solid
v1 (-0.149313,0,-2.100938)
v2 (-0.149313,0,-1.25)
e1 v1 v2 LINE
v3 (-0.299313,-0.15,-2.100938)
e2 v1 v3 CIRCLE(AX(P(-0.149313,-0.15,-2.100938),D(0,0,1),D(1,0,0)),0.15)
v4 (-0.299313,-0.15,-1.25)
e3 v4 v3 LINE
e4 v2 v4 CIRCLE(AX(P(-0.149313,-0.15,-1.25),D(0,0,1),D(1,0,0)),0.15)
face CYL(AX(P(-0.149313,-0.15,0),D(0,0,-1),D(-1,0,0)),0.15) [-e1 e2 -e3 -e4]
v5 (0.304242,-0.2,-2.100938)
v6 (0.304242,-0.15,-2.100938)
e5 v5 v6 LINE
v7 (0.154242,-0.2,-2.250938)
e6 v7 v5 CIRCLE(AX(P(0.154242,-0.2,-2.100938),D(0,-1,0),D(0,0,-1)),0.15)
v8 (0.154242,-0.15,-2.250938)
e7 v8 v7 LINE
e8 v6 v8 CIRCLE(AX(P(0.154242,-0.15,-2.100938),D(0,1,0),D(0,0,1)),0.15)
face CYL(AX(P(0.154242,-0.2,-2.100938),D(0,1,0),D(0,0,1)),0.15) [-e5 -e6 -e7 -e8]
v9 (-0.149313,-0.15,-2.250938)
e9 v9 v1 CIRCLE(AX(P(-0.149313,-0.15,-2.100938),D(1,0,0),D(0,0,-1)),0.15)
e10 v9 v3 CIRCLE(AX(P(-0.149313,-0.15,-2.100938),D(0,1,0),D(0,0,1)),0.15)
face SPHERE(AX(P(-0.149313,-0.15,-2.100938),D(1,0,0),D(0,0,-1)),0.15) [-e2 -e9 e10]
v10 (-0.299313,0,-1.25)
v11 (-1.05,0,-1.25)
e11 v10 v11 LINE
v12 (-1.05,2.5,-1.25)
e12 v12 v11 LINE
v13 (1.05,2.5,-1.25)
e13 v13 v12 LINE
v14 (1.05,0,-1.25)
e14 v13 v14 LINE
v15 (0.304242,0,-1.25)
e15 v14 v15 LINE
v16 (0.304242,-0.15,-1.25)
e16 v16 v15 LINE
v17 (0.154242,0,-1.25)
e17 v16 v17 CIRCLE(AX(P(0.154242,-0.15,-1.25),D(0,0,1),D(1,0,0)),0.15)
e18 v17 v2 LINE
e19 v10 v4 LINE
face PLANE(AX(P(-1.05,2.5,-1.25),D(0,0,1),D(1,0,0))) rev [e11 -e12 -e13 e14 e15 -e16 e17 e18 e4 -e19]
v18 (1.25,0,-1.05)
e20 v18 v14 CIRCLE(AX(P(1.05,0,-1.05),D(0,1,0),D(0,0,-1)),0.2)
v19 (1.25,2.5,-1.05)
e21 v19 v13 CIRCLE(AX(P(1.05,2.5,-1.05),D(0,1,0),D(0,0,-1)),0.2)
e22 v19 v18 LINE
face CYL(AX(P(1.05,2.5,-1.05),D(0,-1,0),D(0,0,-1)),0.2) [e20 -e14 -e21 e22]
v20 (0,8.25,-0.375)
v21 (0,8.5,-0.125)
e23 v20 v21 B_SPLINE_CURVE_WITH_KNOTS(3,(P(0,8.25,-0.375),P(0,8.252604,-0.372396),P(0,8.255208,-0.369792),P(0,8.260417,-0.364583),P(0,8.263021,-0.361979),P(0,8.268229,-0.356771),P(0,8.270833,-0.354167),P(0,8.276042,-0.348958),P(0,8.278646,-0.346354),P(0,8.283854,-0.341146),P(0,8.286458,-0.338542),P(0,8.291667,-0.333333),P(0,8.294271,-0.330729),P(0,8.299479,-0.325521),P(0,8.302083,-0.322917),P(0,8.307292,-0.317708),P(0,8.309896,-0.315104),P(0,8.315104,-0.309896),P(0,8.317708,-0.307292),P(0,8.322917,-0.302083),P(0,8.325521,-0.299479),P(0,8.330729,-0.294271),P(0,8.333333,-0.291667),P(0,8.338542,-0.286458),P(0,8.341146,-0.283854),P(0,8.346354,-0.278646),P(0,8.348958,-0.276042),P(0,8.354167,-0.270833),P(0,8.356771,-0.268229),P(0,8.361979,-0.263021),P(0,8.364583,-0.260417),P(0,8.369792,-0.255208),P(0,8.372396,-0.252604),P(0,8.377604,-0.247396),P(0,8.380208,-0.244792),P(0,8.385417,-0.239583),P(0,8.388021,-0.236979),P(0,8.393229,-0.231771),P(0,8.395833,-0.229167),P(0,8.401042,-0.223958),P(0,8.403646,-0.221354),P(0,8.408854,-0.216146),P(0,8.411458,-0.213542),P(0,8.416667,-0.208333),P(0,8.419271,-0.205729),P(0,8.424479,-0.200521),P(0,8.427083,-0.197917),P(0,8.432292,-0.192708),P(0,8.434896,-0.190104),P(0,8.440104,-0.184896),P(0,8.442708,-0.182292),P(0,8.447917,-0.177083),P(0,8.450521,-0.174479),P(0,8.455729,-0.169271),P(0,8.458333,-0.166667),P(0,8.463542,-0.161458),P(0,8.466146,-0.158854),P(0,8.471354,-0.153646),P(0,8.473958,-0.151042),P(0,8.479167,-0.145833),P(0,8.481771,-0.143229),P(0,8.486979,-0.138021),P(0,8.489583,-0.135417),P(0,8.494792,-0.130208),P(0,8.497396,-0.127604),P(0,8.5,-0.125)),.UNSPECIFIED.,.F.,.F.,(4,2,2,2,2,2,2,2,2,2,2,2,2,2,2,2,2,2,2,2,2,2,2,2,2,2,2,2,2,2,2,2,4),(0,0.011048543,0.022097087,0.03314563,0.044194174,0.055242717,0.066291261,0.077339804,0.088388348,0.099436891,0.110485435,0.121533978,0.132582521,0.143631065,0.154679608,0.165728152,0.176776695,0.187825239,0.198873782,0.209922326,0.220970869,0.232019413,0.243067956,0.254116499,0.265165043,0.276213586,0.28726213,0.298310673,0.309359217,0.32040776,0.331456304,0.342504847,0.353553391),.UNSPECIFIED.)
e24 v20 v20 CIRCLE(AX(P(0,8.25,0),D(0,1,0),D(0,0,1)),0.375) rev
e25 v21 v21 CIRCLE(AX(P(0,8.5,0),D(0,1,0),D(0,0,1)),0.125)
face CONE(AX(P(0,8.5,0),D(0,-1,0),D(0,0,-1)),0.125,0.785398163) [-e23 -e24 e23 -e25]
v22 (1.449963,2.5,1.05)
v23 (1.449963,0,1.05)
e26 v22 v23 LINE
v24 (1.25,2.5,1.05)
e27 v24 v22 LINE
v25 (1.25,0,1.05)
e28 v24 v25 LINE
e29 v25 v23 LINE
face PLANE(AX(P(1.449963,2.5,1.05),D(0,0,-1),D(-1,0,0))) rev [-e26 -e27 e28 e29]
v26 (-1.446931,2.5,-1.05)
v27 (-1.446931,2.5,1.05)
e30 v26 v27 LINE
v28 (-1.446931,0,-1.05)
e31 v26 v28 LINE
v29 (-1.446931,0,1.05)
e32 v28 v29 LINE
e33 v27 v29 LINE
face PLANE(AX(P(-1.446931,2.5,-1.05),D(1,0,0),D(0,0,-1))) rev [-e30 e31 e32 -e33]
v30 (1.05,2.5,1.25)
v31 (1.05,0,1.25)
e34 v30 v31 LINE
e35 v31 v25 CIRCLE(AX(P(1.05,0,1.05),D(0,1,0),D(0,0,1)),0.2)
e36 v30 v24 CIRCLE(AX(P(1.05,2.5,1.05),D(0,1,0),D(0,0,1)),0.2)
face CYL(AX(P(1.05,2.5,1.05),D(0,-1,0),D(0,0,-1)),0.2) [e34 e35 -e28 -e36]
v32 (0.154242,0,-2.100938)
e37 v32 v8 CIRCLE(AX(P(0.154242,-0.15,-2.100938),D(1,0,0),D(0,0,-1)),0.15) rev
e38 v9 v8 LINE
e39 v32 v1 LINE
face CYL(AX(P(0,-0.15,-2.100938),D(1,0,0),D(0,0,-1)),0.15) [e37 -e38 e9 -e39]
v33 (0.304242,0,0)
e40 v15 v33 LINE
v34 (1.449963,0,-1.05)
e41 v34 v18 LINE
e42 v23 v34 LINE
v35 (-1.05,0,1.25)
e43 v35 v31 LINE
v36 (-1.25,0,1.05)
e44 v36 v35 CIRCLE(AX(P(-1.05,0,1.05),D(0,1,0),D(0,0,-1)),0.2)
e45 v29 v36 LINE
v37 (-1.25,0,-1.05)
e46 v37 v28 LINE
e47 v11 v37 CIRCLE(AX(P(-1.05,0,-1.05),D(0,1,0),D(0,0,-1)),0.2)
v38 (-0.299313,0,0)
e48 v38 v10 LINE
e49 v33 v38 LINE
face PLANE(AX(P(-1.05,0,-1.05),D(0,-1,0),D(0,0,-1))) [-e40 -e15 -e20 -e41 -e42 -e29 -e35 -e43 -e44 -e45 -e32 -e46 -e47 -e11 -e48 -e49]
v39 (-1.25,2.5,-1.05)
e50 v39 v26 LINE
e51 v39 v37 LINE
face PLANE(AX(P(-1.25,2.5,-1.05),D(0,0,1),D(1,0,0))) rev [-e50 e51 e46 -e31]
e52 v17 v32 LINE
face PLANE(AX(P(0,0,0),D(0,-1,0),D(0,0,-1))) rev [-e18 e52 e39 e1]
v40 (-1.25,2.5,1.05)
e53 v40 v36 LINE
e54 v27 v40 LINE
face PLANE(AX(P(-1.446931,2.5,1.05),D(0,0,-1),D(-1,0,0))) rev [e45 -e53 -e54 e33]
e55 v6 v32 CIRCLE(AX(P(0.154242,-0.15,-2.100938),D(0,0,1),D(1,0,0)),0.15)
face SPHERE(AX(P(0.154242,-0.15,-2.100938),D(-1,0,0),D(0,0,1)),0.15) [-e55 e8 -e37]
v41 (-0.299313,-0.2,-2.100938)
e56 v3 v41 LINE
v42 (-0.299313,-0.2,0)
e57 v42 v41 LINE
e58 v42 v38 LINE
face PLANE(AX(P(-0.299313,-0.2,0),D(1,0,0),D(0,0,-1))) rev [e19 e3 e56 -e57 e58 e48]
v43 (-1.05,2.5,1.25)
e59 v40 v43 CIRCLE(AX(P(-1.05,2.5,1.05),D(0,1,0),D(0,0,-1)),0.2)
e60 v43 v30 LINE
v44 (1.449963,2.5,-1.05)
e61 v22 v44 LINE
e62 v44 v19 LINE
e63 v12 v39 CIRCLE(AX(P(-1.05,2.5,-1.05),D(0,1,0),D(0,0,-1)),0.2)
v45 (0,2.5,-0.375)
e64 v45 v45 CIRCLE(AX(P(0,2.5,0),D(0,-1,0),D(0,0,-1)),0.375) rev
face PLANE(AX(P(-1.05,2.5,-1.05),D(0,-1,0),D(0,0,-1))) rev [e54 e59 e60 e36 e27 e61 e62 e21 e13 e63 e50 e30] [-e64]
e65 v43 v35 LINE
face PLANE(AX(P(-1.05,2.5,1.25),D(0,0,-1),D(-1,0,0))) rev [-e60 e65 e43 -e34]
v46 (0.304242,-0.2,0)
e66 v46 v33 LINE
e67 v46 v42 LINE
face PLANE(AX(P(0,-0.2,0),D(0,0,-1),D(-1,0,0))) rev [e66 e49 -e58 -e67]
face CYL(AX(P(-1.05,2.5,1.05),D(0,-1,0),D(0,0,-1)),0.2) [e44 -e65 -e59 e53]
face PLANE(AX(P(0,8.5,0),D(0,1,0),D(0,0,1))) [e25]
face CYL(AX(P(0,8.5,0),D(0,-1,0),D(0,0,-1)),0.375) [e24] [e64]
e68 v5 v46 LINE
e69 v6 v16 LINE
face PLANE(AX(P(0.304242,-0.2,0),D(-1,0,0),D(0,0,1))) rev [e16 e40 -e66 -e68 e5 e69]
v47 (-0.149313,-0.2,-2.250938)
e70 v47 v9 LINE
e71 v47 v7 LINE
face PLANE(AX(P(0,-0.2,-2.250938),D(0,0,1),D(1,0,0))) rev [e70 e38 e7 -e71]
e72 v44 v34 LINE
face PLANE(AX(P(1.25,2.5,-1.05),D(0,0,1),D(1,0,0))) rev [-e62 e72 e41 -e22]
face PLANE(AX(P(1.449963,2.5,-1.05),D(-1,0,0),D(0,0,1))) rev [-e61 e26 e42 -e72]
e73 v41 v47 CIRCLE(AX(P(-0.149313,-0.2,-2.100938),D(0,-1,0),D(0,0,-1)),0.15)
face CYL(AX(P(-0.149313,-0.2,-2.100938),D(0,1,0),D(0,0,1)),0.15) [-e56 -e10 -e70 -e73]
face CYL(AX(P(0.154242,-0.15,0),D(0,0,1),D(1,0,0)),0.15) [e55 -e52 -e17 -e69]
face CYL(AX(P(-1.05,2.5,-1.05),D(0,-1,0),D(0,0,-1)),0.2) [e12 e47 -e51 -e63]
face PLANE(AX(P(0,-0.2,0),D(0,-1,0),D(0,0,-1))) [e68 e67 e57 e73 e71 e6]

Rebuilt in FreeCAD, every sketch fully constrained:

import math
import FreeCAD as App
import Part
import Sketcher
from FreeCAD import Vector


def edges_at(feature, points):
    """Names of the edges that pass closest to the given points."""
    edges = feature.Shape.Edges
    near = lambda p: min(range(len(edges)), key=lambda i: edges[i].distToShape(Part.Vertex(*p))[0])
    return sorted({f"Edge{near(p) + 1}" for p in points})


def add_polygon(sketch, points):
    """Adds a closed chain of lines whose ends are joined by coincident constraints."""
    first, n = sketch.GeometryCount, len(points)
    for a, b in zip(points, points[1:] + points[:1]):
        sketch.addGeometry(Part.LineSegment(App.Vector(*a, 0), App.Vector(*b, 0)), False)
    for i in range(n):
        sketch.addConstraint(Sketcher.Constraint("Coincident", first + i, 2, first + (i + 1) % n, 1))

doc = App.newDocument("Part")
body = doc.addObject("PartDesign::Body", "Body")

# Sketch on XZ plane
sketch1 = doc.addObject("Sketcher::SketchObject", "Sketch")
body.addObject(sketch1)
sketch1.AttachmentSupport = (doc.XZ_Plane, [""])
sketch1.MapMode = "FlatFace"
sketch1.addGeometry(Part.LineSegment(Vector(-1.25, -1.05, 0), Vector(-1.45, -1.05, 0)), False)
sketch1.addGeometry(Part.LineSegment(Vector(-1.45, -1.05, 0), Vector(-1.45, 1.05, 0)), False)
sketch1.addGeometry(Part.LineSegment(Vector(-1.45, 1.05, 0), Vector(-1.25, 1.05, 0)), False)
sketch1.addGeometry(Part.ArcOfCircle(Part.Circle(Vector(-1.05, 1.05, 0), Vector(0, 0, 1), 0.2), math.radians(90), math.radians(180)), False)
sketch1.addGeometry(Part.LineSegment(Vector(-1.05, 1.25, 0), Vector(1.05, 1.25, 0)), False)
sketch1.addGeometry(Part.ArcOfCircle(Part.Circle(Vector(1.05, 1.05, 0), Vector(0, 0, 1), 0.2), math.radians(0), math.radians(90)), False)
sketch1.addGeometry(Part.LineSegment(Vector(1.25, 1.05, 0), Vector(1.45, 1.05, 0)), False)
sketch1.addGeometry(Part.LineSegment(Vector(1.45, 1.05, 0), Vector(1.45, -1.05, 0)), False)
sketch1.addGeometry(Part.LineSegment(Vector(1.45, -1.05, 0), Vector(1.25, -1.05, 0)), False)
sketch1.addGeometry(Part.ArcOfCircle(Part.Circle(Vector(1.05, -1.05, 0), Vector(0, 0, 1), 0.2), math.radians(-90), math.radians(0)), False)
sketch1.addGeometry(Part.LineSegment(Vector(1.05, -1.25, 0), Vector(-1.05, -1.25, 0)), False)
sketch1.addGeometry(Part.ArcOfCircle(Part.Circle(Vector(-1.05, -1.05, 0), Vector(0, 0, 1), 0.2), math.radians(-180), math.radians(-90)), False)
sketch1.addConstraint(Sketcher.Constraint("Coincident", 0, 2, 1, 1))
sketch1.addConstraint(Sketcher.Constraint("Coincident", 1, 2, 2, 1))
sketch1.addConstraint(Sketcher.Constraint("Coincident", 2, 2, 3, 2))
sketch1.addConstraint(Sketcher.Constraint("Tangent", 3, 1, 4, 1))
sketch1.addConstraint(Sketcher.Constraint("Tangent", 4, 2, 5, 2))
sketch1.addConstraint(Sketcher.Constraint("Coincident", 5, 1, 6, 1))
sketch1.addConstraint(Sketcher.Constraint("Coincident", 6, 2, 7, 1))
sketch1.addConstraint(Sketcher.Constraint("Coincident", 7, 2, 8, 1))
sketch1.addConstraint(Sketcher.Constraint("Coincident", 8, 2, 9, 2))
sketch1.addConstraint(Sketcher.Constraint("Tangent", 9, 1, 10, 1))
sketch1.addConstraint(Sketcher.Constraint("Tangent", 10, 2, 11, 2))
sketch1.addConstraint(Sketcher.Constraint("Coincident", 11, 1, 0, 1))
sketch1.addConstraint(Sketcher.Constraint("Horizontal", 0))
sketch1.addConstraint(Sketcher.Constraint("Vertical", 1))
sketch1.addConstraint(Sketcher.Constraint("Horizontal", 2))
sketch1.addConstraint(Sketcher.Constraint("Horizontal", 4))
sketch1.addConstraint(Sketcher.Constraint("Horizontal", 6))
sketch1.addConstraint(Sketcher.Constraint("Vertical", 7))
sketch1.addConstraint(Sketcher.Constraint("Horizontal", 8))
sketch1.addConstraint(Sketcher.Constraint("Horizontal", 10))
sketch1.addConstraint(Sketcher.Constraint("Equal", 3, 5))
sketch1.addConstraint(Sketcher.Constraint("Equal", 5, 9))
sketch1.addConstraint(Sketcher.Constraint("Equal", 9, 11))
sketch1.addConstraint(Sketcher.Constraint("Symmetric", 3, 3, 9, 3, -1, 1))
sketch1.addConstraint(Sketcher.Constraint("Symmetric", 5, 1, 11, 1, -1, 1))
sketch1.addConstraint(Sketcher.Constraint("Symmetric", 2, 2, 5, 1, -2))
sketch1.addConstraint(Sketcher.Constraint("Horizontal", 11, 3, 0, 2))
sketch1.addConstraint(Sketcher.Constraint("Horizontal", 0, 2, 7, 2))
sketch1.addConstraint(Sketcher.Constraint("Equal", 10, 1))
sketch1.addConstraint(Sketcher.Constraint("Radius", 3, 0.2))
sketch1.addConstraint(Sketcher.Constraint("DistanceX", 4, 1, 4, 2, 2.1))
sketch1.addConstraint(Sketcher.Constraint("DistanceX", 0, 2, 0, 1, 0.196931))
sketch1.addConstraint(Sketcher.Constraint("DistanceX", 6, 1, 6, 2, 0.199963))
pad1 = doc.addObject("PartDesign::Pad", "Pad")
body.addObject(pad1)
pad1.Profile = sketch1
pad1.Length = 2.5
pad1.Reversed = True

# Sketch on XZ plane
sketch2 = doc.addObject("Sketcher::SketchObject", "Sketch001")
body.addObject(sketch2)
sketch2.AttachmentSupport = (doc.XZ_Plane, [""])
sketch2.MapMode = "FlatFace"
sketch2.AttachmentOffset = App.Placement(Vector(0, 0, -2.5), App.Rotation())
sketch2.addGeometry(Part.Circle(Vector(0, 0, 0), Vector(0, 0, 1), 0.38), False)
sketch2.addConstraint(Sketcher.Constraint("Coincident", 0, 3, -1, 1))
sketch2.addConstraint(Sketcher.Constraint("Diameter", 0, 0.75))
pad2 = doc.addObject("PartDesign::Pad", "Pad001")
body.addObject(pad2)
pad2.Profile = sketch2
pad2.Length = 6
pad2.Reversed = True
doc.recompute()

chamfer = doc.addObject("PartDesign::Chamfer", "Chamfer")
body.addObject(chamfer)
chamfer.Base = (pad2, edges_at(pad2, [(0, 8.5, 0.375)]))
chamfer.Size = 0.25

# Sketch on XZ plane
sketch3 = doc.addObject("Sketcher::SketchObject", "Sketch002")
body.addObject(sketch3)
sketch3.AttachmentSupport = (doc.XZ_Plane, [""])
sketch3.MapMode = "FlatFace"
add_polygon(sketch3, [(0.3, 0), (-0.3, 0), (-0.3, -2.3), (0.3, -2.3)])  # lines 0-3
sketch3.addConstraint(Sketcher.Constraint("Horizontal", 0))
sketch3.addConstraint(Sketcher.Constraint("Vertical", 1))
sketch3.addConstraint(Sketcher.Constraint("Horizontal", 2))
sketch3.addConstraint(Sketcher.Constraint("Vertical", 3))
sketch3.addConstraint(Sketcher.Constraint("PointOnObject", 0, 2, -1))
sketch3.addConstraint(Sketcher.Constraint("DistanceY", 1, 2, 1, 1, 2.250938))
sketch3.addConstraint(Sketcher.Constraint("DistanceX", 0, 2, 0, 1, 0.603555))
sketch3.addConstraint(Sketcher.Constraint("DistanceX", -1, 1, 2, 2, 0.304242))
pad3 = doc.addObject("PartDesign::Pad", "Pad002")
body.addObject(pad3)
pad3.Profile = sketch3
pad3.Length = 0.2
doc.recompute()

fillet = doc.addObject("PartDesign::Fillet", "Fillet")
body.addObject(fillet)
fillet.Base = (pad3, edges_at(pad3, [(0.002, 0, -2.251)]))
fillet.Radius = 0.15
doc.recompute()

fillet2 = doc.addObject("PartDesign::Fillet", "Fillet001")
body.addObject(fillet2)
fillet2.Base = (fillet, edges_at(fillet, [
    (-0.299, 0, -1.675),
    (-0.299, -0.175, -2.251),
    (0.304, -0.175, -2.251),
    (0.304, 0, -1.675),
    (0.304, -0.044, -2.207),
    (-0.299, -0.044, -2.207),
]))
fillet2.Radius = 0.15

doc.recompute()
